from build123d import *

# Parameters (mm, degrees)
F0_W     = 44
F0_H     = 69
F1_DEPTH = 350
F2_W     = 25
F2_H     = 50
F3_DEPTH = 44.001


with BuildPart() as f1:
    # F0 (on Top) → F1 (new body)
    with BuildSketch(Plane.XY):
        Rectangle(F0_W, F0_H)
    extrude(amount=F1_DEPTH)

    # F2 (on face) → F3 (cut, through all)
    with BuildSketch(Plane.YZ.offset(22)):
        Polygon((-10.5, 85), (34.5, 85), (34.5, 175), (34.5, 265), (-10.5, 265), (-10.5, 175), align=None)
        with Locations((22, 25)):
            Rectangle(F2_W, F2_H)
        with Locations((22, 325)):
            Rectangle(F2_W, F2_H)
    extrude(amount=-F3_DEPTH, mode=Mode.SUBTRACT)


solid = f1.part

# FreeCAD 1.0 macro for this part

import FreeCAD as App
import Part
import Sketcher

V = App.Vector


def add_polygon(sketch, points):
    """Adds a closed chain of lines whose ends are joined by coincident constraints."""
    first, n = sketch.GeometryCount, len(points)
    for a, b in zip(points, points[1:] + points[:1]):
        sketch.addGeometry(Part.LineSegment(App.Vector(*a, 0), App.Vector(*b, 0)), False)
    for i in range(n):
        sketch.addConstraint(Sketcher.Constraint("Coincident", first + i, 2, first + (i + 1) % n, 1))

doc = App.newDocument("Part")
params = doc.addObject("Spreadsheet::Sheet", "Params")
for row, (alias, value) in enumerate([
    ("sketch1_width", "44 mm"),
    ("sketch1_height", "69 mm"),
    ("pad1_length", "350 mm"),
    ("sketch2_width", "45 mm"),
    ("sketch2_width2", "25 mm"),
    ("sketch2_height", "180 mm"),
    ("sketch2_height2", "50 mm"),
], start=1):
    params.set(f"A{row}", alias)
    params.set(f"B{row}", "=" + value)
    params.setAlias(f"B{row}", alias)

body = doc.addObject("PartDesign::Body", "Body")

sketch1 = doc.addObject("Sketcher::SketchObject", "Sketch")
body.addObject(sketch1)
sketch1.AttachmentSupport = (doc.XY_Plane, [""])
sketch1.MapMode = "FlatFace"
add_polygon(sketch1, [(-22, 34.5), (-22, -34.5), (22, -34.5), (22, 34.5)])
sketch1.addConstraint([
    Sketcher.Constraint("Vertical", 0),
    Sketcher.Constraint("Horizontal", 1),
    Sketcher.Constraint("Vertical", 2),
    Sketcher.Constraint("Horizontal", 3),
    Sketcher.Constraint("Symmetric", 0, 2, 2, 2, -1, 1),
    Sketcher.Constraint("DistanceX", 1, 1, 1, 2, 44.0),
    Sketcher.Constraint("DistanceY", 0, 2, 0, 1, 69.0),
])
sketch1.setExpression("Constraints[9]", "Params.sketch1_width")
sketch1.setExpression("Constraints[10]", "Params.sketch1_height")
pad1 = doc.addObject("PartDesign::Pad", "Pad")
body.addObject(pad1)
pad1.Profile = sketch1
pad1.setExpression("Length", "Params.pad1_length")

sketch2 = doc.addObject("Sketcher::SketchObject", "Sketch001")
body.addObject(sketch2)
sketch2.AttachmentSupport = (doc.YZ_Plane, [""])
sketch2.MapMode = "FlatFace"
sketch2.AttachmentOffset = App.Placement(V(0, 0, 22), App.Rotation())
add_polygon(sketch2, [(-10.5, 85), (34.5, 85), (34.5, 265), (-10.5, 265)])
add_polygon(sketch2, [(9.5, 50), (9.5, 0), (34.5, 0), (34.5, 50)])
add_polygon(sketch2, [(9.5, 350), (9.5, 300), (34.5, 300), (34.5, 350)])
sketch2.addConstraint([
    Sketcher.Constraint("Horizontal", 0),
    Sketcher.Constraint("Vertical", 1),
    Sketcher.Constraint("Horizontal", 2),
    Sketcher.Constraint("Vertical", 3),
    Sketcher.Constraint("Vertical", 4),
    Sketcher.Constraint("Horizontal", 5),
    Sketcher.Constraint("Vertical", 6),
    Sketcher.Constraint("Horizontal", 7),
    Sketcher.Constraint("Vertical", 8),
    Sketcher.Constraint("Horizontal", 9),
    Sketcher.Constraint("Vertical", 10),
    Sketcher.Constraint("Horizontal", 11),
    Sketcher.Constraint("PointOnObject", 4, 2, -1),
    Sketcher.Constraint("Vertical", 1, 2, 5, 2),
    Sketcher.Constraint("Vertical", 7, 2, 8, 2),
    Sketcher.Constraint("Vertical", 6, 2, 9, 2),
    Sketcher.Constraint("Equal", 6, 8),
    Sketcher.Constraint("DistanceX", 0, 1, 0, 2, 45.0),
    Sketcher.Constraint("DistanceX", 5, 1, 5, 2, 25.0),
    Sketcher.Constraint("DistanceY", 1, 1, 1, 2, 180.0),
    Sketcher.Constraint("DistanceY", 4, 2, 4, 1, 50.0),
    Sketcher.Constraint("DistanceY", -1, 1, 0, 2, 85.0),
    Sketcher.Constraint("DistanceY", -1, 1, 8, 2, 300.0),
    Sketcher.Constraint("DistanceX", -1, 1, 0, 2, 34.5),
])
sketch2.setExpression("Constraints[29]", "Params.sketch2_width")
sketch2.setExpression("Constraints[30]", "Params.sketch2_width2")
sketch2.setExpression("Constraints[31]", "Params.sketch2_height")
sketch2.setExpression("Constraints[32]", "Params.sketch2_height2")
pocket1 = doc.addObject("PartDesign::Pocket", "Pocket")
body.addObject(pocket1)
pocket1.Profile = sketch2
pocket1.Type = "ThroughAll"

doc.recompute()
